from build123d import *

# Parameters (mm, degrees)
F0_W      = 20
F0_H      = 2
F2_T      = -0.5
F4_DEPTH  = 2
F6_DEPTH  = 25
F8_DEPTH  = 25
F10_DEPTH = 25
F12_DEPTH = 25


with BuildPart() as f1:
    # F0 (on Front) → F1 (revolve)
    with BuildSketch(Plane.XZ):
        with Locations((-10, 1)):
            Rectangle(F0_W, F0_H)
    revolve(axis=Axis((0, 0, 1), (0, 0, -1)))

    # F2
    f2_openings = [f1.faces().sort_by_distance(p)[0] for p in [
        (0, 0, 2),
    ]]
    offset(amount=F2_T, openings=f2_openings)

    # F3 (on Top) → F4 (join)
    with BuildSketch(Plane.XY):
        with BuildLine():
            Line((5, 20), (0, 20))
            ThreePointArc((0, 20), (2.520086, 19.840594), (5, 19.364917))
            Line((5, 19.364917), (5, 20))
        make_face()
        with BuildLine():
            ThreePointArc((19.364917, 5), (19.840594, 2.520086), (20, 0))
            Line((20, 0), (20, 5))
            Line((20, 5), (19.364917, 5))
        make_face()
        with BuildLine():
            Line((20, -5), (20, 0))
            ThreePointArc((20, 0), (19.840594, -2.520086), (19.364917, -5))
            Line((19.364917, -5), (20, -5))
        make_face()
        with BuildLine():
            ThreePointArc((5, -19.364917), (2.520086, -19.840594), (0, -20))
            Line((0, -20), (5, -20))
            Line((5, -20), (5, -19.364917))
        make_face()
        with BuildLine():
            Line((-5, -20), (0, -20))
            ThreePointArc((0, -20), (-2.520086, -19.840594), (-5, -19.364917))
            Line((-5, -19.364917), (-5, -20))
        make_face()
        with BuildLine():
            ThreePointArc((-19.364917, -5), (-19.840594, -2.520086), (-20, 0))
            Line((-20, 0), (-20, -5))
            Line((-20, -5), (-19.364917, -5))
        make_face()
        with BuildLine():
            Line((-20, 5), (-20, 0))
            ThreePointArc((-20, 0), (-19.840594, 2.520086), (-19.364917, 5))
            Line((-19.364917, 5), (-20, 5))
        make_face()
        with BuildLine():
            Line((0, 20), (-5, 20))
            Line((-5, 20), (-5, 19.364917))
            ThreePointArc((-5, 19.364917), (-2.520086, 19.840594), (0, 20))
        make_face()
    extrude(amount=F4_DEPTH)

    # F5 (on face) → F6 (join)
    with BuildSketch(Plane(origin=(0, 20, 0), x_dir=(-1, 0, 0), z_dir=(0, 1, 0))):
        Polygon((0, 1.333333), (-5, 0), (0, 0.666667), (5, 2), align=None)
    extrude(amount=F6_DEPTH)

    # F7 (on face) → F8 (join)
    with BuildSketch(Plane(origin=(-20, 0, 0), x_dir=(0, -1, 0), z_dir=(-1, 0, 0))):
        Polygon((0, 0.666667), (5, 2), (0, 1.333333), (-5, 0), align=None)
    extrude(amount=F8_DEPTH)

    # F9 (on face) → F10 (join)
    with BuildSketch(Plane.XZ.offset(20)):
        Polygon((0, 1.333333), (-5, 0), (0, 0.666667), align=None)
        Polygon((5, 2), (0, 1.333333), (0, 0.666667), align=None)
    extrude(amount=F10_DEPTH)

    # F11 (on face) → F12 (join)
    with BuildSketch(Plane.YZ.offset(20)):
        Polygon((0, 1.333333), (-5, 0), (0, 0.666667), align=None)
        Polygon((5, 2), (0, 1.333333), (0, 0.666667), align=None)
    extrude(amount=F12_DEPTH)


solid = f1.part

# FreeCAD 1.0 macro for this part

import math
import FreeCAD as App
import Part
import Sketcher

V = App.Vector


def faces_at(feature, points):
    """Names of the faces that lie closest to the given points."""
    faces = feature.Shape.Faces
    near = lambda p: min(range(len(faces)), key=lambda i: faces[i].distToShape(Part.Vertex(*p))[0])
    return sorted({f"Face{near(p) + 1}" for p in points})

doc = App.newDocument("Part")
body = doc.addObject("PartDesign::Body", "Body")

sketch1 = doc.addObject("Sketcher::SketchObject", "Sketch")
body.addObject(sketch1)
sketch1.AttachmentSupport = (doc.XZ_Plane, [""])
sketch1.MapMode = "FlatFace"
sketch1.addGeometry([
    Part.LineSegment(V(-20, 2, 0), V(-20, 0, 0)),
    Part.LineSegment(V(-20, 0, 0), V(0, 0, 0)),
    Part.LineSegment(V(0, 0, 0), V(0, 2, 0)),
    Part.LineSegment(V(0, 2, 0), V(-20, 2, 0)),
], False)
sketch1.addConstraint([
    Sketcher.Constraint("Coincident", 0, 2, 1, 1),
    Sketcher.Constraint("Coincident", 1, 2, 2, 1),
    Sketcher.Constraint("Coincident", 2, 2, 3, 1),
    Sketcher.Constraint("Coincident", 3, 2, 0, 1),
    Sketcher.Constraint("Vertical", 0),
    Sketcher.Constraint("Horizontal", 1),
    Sketcher.Constraint("Vertical", 2),
    Sketcher.Constraint("Horizontal", 3),
    Sketcher.Constraint("Coincident", 1, 2, -1, 1),
    Sketcher.Constraint("DistanceX", 1, 1, 1, 2, 20.0),
    Sketcher.Constraint("DistanceY", 0, 2, 0, 1, 2.0),
])
revolution = doc.addObject("PartDesign::Revolution", "Revolution")
body.addObject(revolution)
revolution.Profile = sketch1
revolution.ReferenceAxis = (sketch1, ["V_Axis"])
revolution.Angle = 360
doc.recompute()

thickness = doc.addObject("PartDesign::Thickness", "Thickness")
body.addObject(thickness)
thickness.Base = (revolution, faces_at(revolution, [(0, 0, 2)]))
thickness.Value = 0.5
thickness.Reversed = True
thickness.Join = "Arc"

sketch2 = doc.addObject("Sketcher::SketchObject", "Sketch001")
body.addObject(sketch2)
sketch2.AttachmentSupport = (doc.XY_Plane, [""])
sketch2.MapMode = "FlatFace"
sketch2.addGeometry([
    Part.LineSegment(V(5, 20, 0), V(0, 20, 0)),
    Part.ArcOfCircle(Part.Circle(V(0, 0, 0), V(0, 0, 1), 20), math.radians(75.52), math.radians(90)),
    Part.LineSegment(V(5, 19.4, 0), V(5, 20, 0)),
    Part.ArcOfCircle(Part.Circle(V(0, 0, 0), V(0, 0, 1), 20), math.radians(0), math.radians(14.48)),
    Part.LineSegment(V(20, 0, 0), V(20, 5, 0)),
    Part.LineSegment(V(20, 5, 0), V(19.4, 5, 0)),
    Part.LineSegment(V(20, -5, 0), V(20, 0, 0)),
    Part.ArcOfCircle(Part.Circle(V(0, 0, 0), V(0, 0, 1), 20), math.radians(-14.48), math.radians(0)),
    Part.LineSegment(V(19.4, -5, 0), V(20, -5, 0)),
    Part.ArcOfCircle(Part.Circle(V(0, 0, 0), V(0, 0, 1), 20), math.radians(-90), math.radians(-75.52)),
    Part.LineSegment(V(0, -20, 0), V(5, -20, 0)),
    Part.LineSegment(V(5, -20, 0), V(5, -19.4, 0)),
    Part.LineSegment(V(-5, -20, 0), V(0, -20, 0)),
    Part.ArcOfCircle(Part.Circle(V(0, 0, 0), V(0, 0, 1), 20), math.radians(-104.48), math.radians(-90)),
    Part.LineSegment(V(-5, -19.4, 0), V(-5, -20, 0)),
    Part.ArcOfCircle(Part.Circle(V(0, 0, 0), V(0, 0, 1), 20), math.radians(180), math.radians(194.48)),
    Part.LineSegment(V(-20, 0, 0), V(-20, -5, 0)),
    Part.LineSegment(V(-20, -5, 0), V(-19.4, -5, 0)),
    Part.LineSegment(V(-20, 5, 0), V(-20, 0, 0)),
    Part.ArcOfCircle(Part.Circle(V(0, 0, 0), V(0, 0, 1), 20), math.radians(165.52), math.radians(180)),
    Part.LineSegment(V(-19.4, 5, 0), V(-20, 5, 0)),
    Part.LineSegment(V(0, 20, 0), V(-5, 20, 0)),
    Part.LineSegment(V(-5, 20, 0), V(-5, 19.4, 0)),
    Part.ArcOfCircle(Part.Circle(V(0, 0, 0), V(0, 0, 1), 20), math.radians(90), math.radians(104.48)),
], False)
sketch2.addConstraint([
    Sketcher.Constraint("Tangent", 0, 2, 1, 2),
    Sketcher.Constraint("Coincident", 1, 1, 2, 1),
    Sketcher.Constraint("Coincident", 2, 2, 0, 1),
    Sketcher.Constraint("Tangent", 3, 1, 4, 1),
    Sketcher.Constraint("Coincident", 4, 2, 5, 1),
    Sketcher.Constraint("Coincident", 5, 2, 3, 2),
    Sketcher.Constraint("Tangent", 6, 2, 7, 2),
    Sketcher.Constraint("Coincident", 7, 1, 8, 1),
    Sketcher.Constraint("Coincident", 8, 2, 6, 1),
    Sketcher.Constraint("Tangent", 9, 1, 10, 1),
    Sketcher.Constraint("Coincident", 10, 2, 11, 1),
    Sketcher.Constraint("Coincident", 11, 2, 9, 2),
    Sketcher.Constraint("Tangent", 12, 2, 13, 2),
    Sketcher.Constraint("Coincident", 13, 1, 14, 1),
    Sketcher.Constraint("Coincident", 14, 2, 12, 1),
    Sketcher.Constraint("Tangent", 15, 1, 16, 1),
    Sketcher.Constraint("Coincident", 16, 2, 17, 1),
    Sketcher.Constraint("Coincident", 17, 2, 15, 2),
    Sketcher.Constraint("Tangent", 18, 2, 19, 2),
    Sketcher.Constraint("Coincident", 19, 1, 20, 1),
    Sketcher.Constraint("Coincident", 20, 2, 18, 1),
    Sketcher.Constraint("Coincident", 21, 2, 22, 1),
    Sketcher.Constraint("Coincident", 22, 2, 23, 2),
    Sketcher.Constraint("Tangent", 23, 1, 21, 1),
    Sketcher.Constraint("Horizontal", 0),
    Sketcher.Constraint("Vertical", 2),
    Sketcher.Constraint("Vertical", 4),
    Sketcher.Constraint("Horizontal", 5),
    Sketcher.Constraint("Vertical", 6),
    Sketcher.Constraint("Horizontal", 8),
    Sketcher.Constraint("Horizontal", 10),
    Sketcher.Constraint("Vertical", 11),
    Sketcher.Constraint("Horizontal", 12),
    Sketcher.Constraint("Vertical", 14),
    Sketcher.Constraint("Vertical", 16),
    Sketcher.Constraint("Horizontal", 17),
    Sketcher.Constraint("Vertical", 18),
    Sketcher.Constraint("Horizontal", 20),
    Sketcher.Constraint("Horizontal", 21),
    Sketcher.Constraint("Vertical", 22),
    Sketcher.Constraint("Coincident", 1, 3, -1, 1),
    Sketcher.Constraint("Coincident", 3, 3, -1, 1),
    Sketcher.Constraint("Coincident", 7, 3, -1, 1),
    Sketcher.Constraint("Coincident", 9, 3, -1, 1),
    Sketcher.Constraint("Coincident", 13, 3, -1, 1),
    Sketcher.Constraint("Coincident", 15, 3, -1, 1),
    Sketcher.Constraint("Coincident", 19, 3, -1, 1),
    Sketcher.Constraint("Coincident", 23, 3, -1, 1),
    Sketcher.Constraint("Equal", 1, 3),
    Sketcher.Constraint("Equal", 3, 7),
    Sketcher.Constraint("Equal", 7, 9),
    Sketcher.Constraint("Equal", 9, 13),
    Sketcher.Constraint("Equal", 13, 15),
    Sketcher.Constraint("Equal", 15, 19),
    Sketcher.Constraint("Equal", 19, 23),
    Sketcher.Constraint("Horizontal", 11, 2, 13, 1),
    Sketcher.Constraint("Horizontal", 8, 2, 16, 2),
    Sketcher.Constraint("Horizontal", 5, 2, 19, 1),
    Sketcher.Constraint("Horizontal", 1, 1, 22, 2),
    Sketcher.Constraint("Vertical", 5, 2, 7, 1),
    Sketcher.Constraint("Vertical", 2, 2, 10, 2),
    Sketcher.Constraint("Equal", 20, 2),
    Sketcher.Constraint("DistanceX", 0, 2, 0, 1, 5.0),
    Sketcher.Constraint("DistanceY", -1, 1, 0, 2, 20.0),
])
pad1 = doc.addObject("PartDesign::Pad", "Pad")
body.addObject(pad1)
pad1.Profile = sketch2
pad1.Length = 2

sketch3 = doc.addObject("Sketcher::SketchObject", "Sketch002")
body.addObject(sketch3)
sketch3.AttachmentSupport = (doc.XZ_Plane, [""])
sketch3.MapMode = "FlatFace"
sketch3.AttachmentOffset = App.Placement(V(0, 0, -20), App.Rotation())
sketch3.addGeometry([
    Part.LineSegment(V(0, 1.333333, 0), V(5, 0, 0)),
    Part.LineSegment(V(5, 0, 0), V(0, 0.666667, 0)),
    Part.LineSegment(V(0, 0.666667, 0), V(-5, 2, 0)),
    Part.LineSegment(V(-5, 2, 0), V(0, 1.333333, 0)),
], False)
sketch3.addConstraint([
    Sketcher.Constraint("Coincident", 0, 2, 1, 1),
    Sketcher.Constraint("Coincident", 1, 2, 2, 1),
    Sketcher.Constraint("Coincident", 2, 2, 3, 1),
    Sketcher.Constraint("Coincident", 3, 2, 0, 1),
    Sketcher.Constraint("PointOnObject", 0, 2, -1),
    Sketcher.Constraint("PointOnObject", 1, 2, -2),
    Sketcher.Constraint("PointOnObject", 3, 2, -2),
    Sketcher.Constraint("Parallel", 0, 2),
    Sketcher.Constraint("Parallel", 1, 3),
    Sketcher.Constraint("DistanceX", -1, 1, 0, 2, 5.0),
    Sketcher.Constraint("DistanceY", -1, 1, 2, 2, 2.0),
    Sketcher.Constraint("Distance", 1, 5.044249),
])
pad2 = doc.addObject("PartDesign::Pad", "Pad001")
body.addObject(pad2)
pad2.Profile = sketch3
pad2.Length = 25
pad2.Reversed = True

sketch4 = doc.addObject("Sketcher::SketchObject", "Sketch003")
body.addObject(sketch4)
sketch4.AttachmentSupport = (doc.YZ_Plane, [""])
sketch4.MapMode = "FlatFace"
sketch4.AttachmentOffset = App.Placement(V(0, 0, -20), App.Rotation())
sketch4.addGeometry([
    Part.LineSegment(V(0, 0.666667, 0), V(-5, 2, 0)),
    Part.LineSegment(V(-5, 2, 0), V(0, 1.333333, 0)),
    Part.LineSegment(V(0, 1.333333, 0), V(5, 0, 0)),
    Part.LineSegment(V(5, 0, 0), V(0, 0.666667, 0)),
], False)
sketch4.addConstraint([
    Sketcher.Constraint("Coincident", 0, 2, 1, 1),
    Sketcher.Constraint("Coincident", 1, 2, 2, 1),
    Sketcher.Constraint("Coincident", 2, 2, 3, 1),
    Sketcher.Constraint("Coincident", 3, 2, 0, 1),
    Sketcher.Constraint("PointOnObject", 1, 2, -2),
    Sketcher.Constraint("PointOnObject", 2, 2, -1),
    Sketcher.Constraint("PointOnObject", 3, 2, -2),
    Sketcher.Constraint("Parallel", 0, 2),
    Sketcher.Constraint("Parallel", 1, 3),
    Sketcher.Constraint("DistanceX", 0, 2, -1, 1, 5.0),
    Sketcher.Constraint("DistanceY", -1, 1, 0, 2, 2.0),
    Sketcher.Constraint("Distance", 1, 5.044249),
])
pad3 = doc.addObject("PartDesign::Pad", "Pad002")
body.addObject(pad3)
pad3.Profile = sketch4
pad3.Length = 25
pad3.Reversed = True

sketch5 = doc.addObject("Sketcher::SketchObject", "Sketch004")
body.addObject(sketch5)
sketch5.AttachmentSupport = (doc.XZ_Plane, [""])
sketch5.MapMode = "FlatFace"
sketch5.AttachmentOffset = App.Placement(V(0, 0, 20), App.Rotation())
sketch5.addGeometry([
    Part.LineSegment(V(0, 1.333333, 0), V(-5, 0, 0)),
    Part.LineSegment(V(-5, 0, 0), V(0, 0.666667, 0)),
    Part.LineSegment(V(0, 0.666667, 0), V(5, 2, 0)),
    Part.LineSegment(V(5, 2, 0), V(0, 1.333333, 0)),
], False)
sketch5.addConstraint([
    Sketcher.Constraint("Coincident", 0, 2, 1, 1),
    Sketcher.Constraint("Coincident", 1, 2, 2, 1),
    Sketcher.Constraint("Coincident", 2, 2, 3, 1),
    Sketcher.Constraint("Coincident", 3, 2, 0, 1),
    Sketcher.Constraint("PointOnObject", 0, 2, -1),
    Sketcher.Constraint("PointOnObject", 1, 2, -2),
    Sketcher.Constraint("PointOnObject", 3, 2, -2),
    Sketcher.Constraint("Parallel", 0, 2),
    Sketcher.Constraint("Parallel", 1, 3),
    Sketcher.Constraint("DistanceX", 0, 2, -1, 1, 5.0),
    Sketcher.Constraint("DistanceY", -1, 1, 2, 2, 2.0),
    Sketcher.Constraint("Distance", 1, 5.044249),
])
pad4 = doc.addObject("PartDesign::Pad", "Pad003")
body.addObject(pad4)
pad4.Profile = sketch5
pad4.Length = 25

sketch6 = doc.addObject("Sketcher::SketchObject", "Sketch005")
body.addObject(sketch6)
sketch6.AttachmentSupport = (doc.YZ_Plane, [""])
sketch6.MapMode = "FlatFace"
sketch6.AttachmentOffset = App.Placement(V(0, 0, 20), App.Rotation())
sketch6.addGeometry([
    Part.LineSegment(V(0, 1.333333, 0), V(-5, 0, 0)),
    Part.LineSegment(V(-5, 0, 0), V(0, 0.666667, 0)),
    Part.LineSegment(V(0, 0.666667, 0), V(5, 2, 0)),
    Part.LineSegment(V(5, 2, 0), V(0, 1.333333, 0)),
], False)
sketch6.addConstraint([
    Sketcher.Constraint("Coincident", 0, 2, 1, 1),
    Sketcher.Constraint("Coincident", 1, 2, 2, 1),
    Sketcher.Constraint("Coincident", 2, 2, 3, 1),
    Sketcher.Constraint("Coincident", 3, 2, 0, 1),
    Sketcher.Constraint("PointOnObject", 0, 2, -1),
    Sketcher.Constraint("PointOnObject", 1, 2, -2),
    Sketcher.Constraint("PointOnObject", 3, 2, -2),
    Sketcher.Constraint("Parallel", 0, 2),
    Sketcher.Constraint("Parallel", 1, 3),
    Sketcher.Constraint("DistanceX", 0, 2, -1, 1, 5.0),
    Sketcher.Constraint("DistanceY", -1, 1, 2, 2, 2.0),
    Sketcher.Constraint("Distance", 1, 5.044249),
])
pad5 = doc.addObject("PartDesign::Pad", "Pad004")
body.addObject(pad5)
pad5.Profile = sketch6
pad5.Length = 25

doc.recompute()
